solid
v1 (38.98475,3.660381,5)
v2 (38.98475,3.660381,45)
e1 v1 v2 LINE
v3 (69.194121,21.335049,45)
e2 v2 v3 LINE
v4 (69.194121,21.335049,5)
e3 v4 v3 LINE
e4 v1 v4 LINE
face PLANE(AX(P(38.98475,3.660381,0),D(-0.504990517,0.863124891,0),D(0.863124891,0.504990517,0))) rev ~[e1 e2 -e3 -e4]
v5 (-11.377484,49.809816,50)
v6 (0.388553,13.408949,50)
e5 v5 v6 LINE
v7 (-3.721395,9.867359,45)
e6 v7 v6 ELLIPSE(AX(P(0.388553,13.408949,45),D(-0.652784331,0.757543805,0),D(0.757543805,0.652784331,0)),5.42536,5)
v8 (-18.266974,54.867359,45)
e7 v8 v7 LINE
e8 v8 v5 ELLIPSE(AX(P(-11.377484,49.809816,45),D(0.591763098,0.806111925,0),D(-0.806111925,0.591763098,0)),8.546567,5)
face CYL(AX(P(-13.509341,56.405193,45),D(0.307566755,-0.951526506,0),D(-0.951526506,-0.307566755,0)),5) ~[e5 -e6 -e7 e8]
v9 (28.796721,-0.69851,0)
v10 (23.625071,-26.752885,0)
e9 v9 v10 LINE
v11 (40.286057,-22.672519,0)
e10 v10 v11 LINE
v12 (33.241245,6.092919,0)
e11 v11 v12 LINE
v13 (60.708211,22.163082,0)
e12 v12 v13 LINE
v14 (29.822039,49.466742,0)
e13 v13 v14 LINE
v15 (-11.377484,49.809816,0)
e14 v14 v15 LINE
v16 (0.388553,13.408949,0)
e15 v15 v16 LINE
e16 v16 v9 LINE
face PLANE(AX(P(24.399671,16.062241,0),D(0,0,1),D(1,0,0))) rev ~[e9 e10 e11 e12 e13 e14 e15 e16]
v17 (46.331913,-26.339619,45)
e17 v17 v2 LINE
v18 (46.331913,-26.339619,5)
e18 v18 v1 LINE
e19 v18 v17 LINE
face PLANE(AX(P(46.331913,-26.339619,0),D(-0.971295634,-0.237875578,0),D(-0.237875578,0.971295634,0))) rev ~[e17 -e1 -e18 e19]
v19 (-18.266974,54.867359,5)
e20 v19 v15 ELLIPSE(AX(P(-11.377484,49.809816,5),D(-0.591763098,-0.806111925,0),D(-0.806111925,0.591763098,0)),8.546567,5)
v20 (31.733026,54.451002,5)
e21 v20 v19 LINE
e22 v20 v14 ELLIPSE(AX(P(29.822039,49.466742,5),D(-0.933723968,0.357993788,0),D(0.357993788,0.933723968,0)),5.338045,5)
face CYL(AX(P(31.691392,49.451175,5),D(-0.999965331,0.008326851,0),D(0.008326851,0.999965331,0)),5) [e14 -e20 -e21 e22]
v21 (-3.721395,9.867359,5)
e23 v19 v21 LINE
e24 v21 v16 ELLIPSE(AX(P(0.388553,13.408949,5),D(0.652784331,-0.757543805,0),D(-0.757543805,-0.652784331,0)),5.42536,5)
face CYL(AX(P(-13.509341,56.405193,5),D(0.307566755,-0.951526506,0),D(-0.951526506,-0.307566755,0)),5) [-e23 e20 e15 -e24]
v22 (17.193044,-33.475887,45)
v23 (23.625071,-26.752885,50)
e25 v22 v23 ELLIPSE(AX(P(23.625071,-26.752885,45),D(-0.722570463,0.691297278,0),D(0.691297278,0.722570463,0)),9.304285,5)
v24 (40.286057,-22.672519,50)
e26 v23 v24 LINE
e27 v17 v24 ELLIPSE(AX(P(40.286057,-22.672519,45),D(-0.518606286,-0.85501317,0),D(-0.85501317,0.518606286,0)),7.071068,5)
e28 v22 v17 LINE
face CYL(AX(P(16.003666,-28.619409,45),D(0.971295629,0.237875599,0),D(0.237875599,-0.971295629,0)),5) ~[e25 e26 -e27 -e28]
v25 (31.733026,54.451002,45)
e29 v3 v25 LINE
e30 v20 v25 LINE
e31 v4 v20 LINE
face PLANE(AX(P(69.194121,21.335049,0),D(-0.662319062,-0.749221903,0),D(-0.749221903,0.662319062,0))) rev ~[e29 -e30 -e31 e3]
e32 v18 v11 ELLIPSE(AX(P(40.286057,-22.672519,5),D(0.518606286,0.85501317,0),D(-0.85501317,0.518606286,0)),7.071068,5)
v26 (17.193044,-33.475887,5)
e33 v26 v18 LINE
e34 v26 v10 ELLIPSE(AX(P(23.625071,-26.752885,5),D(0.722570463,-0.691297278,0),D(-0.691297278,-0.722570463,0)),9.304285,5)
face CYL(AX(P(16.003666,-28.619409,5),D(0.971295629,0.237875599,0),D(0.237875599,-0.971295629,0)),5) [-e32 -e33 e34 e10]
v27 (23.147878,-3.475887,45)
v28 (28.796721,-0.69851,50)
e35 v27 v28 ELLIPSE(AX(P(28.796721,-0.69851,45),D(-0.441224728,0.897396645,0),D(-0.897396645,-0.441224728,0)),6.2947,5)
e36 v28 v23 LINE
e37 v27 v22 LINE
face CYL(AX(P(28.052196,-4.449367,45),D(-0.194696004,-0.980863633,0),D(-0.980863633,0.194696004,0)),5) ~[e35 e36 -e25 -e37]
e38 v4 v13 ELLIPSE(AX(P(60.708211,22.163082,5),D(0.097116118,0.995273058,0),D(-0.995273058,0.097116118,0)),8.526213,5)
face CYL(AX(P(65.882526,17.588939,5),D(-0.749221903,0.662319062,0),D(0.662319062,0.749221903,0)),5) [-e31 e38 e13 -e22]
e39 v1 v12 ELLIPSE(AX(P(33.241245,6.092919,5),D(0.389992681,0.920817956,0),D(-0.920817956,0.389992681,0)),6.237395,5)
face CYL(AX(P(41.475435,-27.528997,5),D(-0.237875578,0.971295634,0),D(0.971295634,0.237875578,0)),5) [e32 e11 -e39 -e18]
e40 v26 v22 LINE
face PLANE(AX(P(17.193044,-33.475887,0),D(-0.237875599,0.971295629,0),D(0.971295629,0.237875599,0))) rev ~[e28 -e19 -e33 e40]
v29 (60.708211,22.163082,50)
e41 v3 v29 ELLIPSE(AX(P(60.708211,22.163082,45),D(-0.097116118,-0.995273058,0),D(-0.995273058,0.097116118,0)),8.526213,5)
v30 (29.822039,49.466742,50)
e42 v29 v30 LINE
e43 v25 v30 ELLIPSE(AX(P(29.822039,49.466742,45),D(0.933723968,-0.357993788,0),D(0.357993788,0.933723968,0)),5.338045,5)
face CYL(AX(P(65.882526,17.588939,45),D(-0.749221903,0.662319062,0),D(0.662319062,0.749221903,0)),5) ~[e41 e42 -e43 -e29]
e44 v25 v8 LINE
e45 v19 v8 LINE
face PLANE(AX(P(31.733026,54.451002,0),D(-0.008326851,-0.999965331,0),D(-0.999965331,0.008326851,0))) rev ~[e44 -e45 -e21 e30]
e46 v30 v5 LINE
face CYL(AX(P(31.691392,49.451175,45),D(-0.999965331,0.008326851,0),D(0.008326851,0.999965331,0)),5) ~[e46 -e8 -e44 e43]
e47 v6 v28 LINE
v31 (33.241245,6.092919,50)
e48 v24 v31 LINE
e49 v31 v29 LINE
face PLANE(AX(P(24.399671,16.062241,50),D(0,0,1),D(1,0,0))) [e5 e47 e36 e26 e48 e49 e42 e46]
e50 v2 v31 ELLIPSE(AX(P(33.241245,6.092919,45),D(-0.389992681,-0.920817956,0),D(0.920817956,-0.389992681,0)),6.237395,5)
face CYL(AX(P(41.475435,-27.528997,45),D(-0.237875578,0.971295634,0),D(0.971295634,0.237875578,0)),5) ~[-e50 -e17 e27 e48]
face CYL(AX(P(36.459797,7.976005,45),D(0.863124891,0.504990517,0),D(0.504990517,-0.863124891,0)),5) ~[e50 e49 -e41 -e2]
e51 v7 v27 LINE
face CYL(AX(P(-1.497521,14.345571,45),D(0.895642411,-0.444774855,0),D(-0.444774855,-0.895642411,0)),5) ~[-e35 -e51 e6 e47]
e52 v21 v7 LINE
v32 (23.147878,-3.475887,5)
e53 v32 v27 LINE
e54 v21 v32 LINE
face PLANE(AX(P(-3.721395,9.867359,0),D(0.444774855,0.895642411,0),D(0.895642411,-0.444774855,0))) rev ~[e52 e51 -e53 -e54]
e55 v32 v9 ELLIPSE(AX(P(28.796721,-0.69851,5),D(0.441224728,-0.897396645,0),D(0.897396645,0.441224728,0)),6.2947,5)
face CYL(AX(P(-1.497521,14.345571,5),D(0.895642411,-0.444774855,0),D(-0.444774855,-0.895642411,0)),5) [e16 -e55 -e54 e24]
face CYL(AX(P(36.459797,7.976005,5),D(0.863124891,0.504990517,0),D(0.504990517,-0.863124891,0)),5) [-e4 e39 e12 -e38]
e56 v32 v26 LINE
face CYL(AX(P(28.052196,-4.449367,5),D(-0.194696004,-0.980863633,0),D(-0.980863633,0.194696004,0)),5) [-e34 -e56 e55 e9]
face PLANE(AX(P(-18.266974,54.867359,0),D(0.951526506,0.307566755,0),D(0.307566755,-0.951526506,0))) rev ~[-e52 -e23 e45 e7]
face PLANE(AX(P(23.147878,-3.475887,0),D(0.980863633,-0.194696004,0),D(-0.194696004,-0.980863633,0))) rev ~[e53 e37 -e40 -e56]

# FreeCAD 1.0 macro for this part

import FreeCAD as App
import Part
import Sketcher
Q = App.Units.Quantity


def edges_at(feature, points):
    """Names of the edges that pass closest to the given points."""
    edges = feature.Shape.Edges
    near = lambda p: min(range(len(edges)), key=lambda i: edges[i].distToShape(Part.Vertex(*p))[0])
    return sorted({f"Edge{near(p) + 1}" for p in points})

doc = App.newDocument("Part")
body = doc.addObject("PartDesign::Body", "Body")

# Sketch on XY plane
sketch1 = body.newObject("Sketcher::SketchObject", "Sketch")
sketch1.AttachmentSupport = (doc.getObject("XY_Plane"), [""])
sketch1.MapMode = "FlatFace"
sketch1.addGeometry(Part.LineSegment(App.Vector(23, -3, 0), App.Vector(17, -33, 0)), False)
sketch1.addGeometry(Part.LineSegment(App.Vector(17, -33, 0), App.Vector(46, -26, 0)), False)
sketch1.addGeometry(Part.LineSegment(App.Vector(46, -26, 0), App.Vector(39, 4, 0)), False)
sketch1.addGeometry(Part.LineSegment(App.Vector(39, 4, 0), App.Vector(69, 21, 0)), False)
sketch1.addGeometry(Part.LineSegment(App.Vector(69, 21, 0), App.Vector(32, 54, 0)), False)
sketch1.addGeometry(Part.LineSegment(App.Vector(32, 54, 0), App.Vector(-18, 55, 0)), False)
sketch1.addGeometry(Part.LineSegment(App.Vector(-18, 55, 0), App.Vector(-4, 10, 0)), False)
sketch1.addGeometry(Part.LineSegment(App.Vector(-4, 10, 0), App.Vector(23, -3, 0)), False)
sketch1.addConstraint(Sketcher.Constraint("Coincident", 0, 2, 1, 1))
sketch1.addConstraint(Sketcher.Constraint("Coincident", 1, 2, 2, 1))
sketch1.addConstraint(Sketcher.Constraint("Coincident", 2, 2, 3, 1))
sketch1.addConstraint(Sketcher.Constraint("Coincident", 3, 2, 4, 1))
sketch1.addConstraint(Sketcher.Constraint("Coincident", 4, 2, 5, 1))
sketch1.addConstraint(Sketcher.Constraint("Coincident", 5, 2, 6, 1))
sketch1.addConstraint(Sketcher.Constraint("Coincident", 6, 2, 7, 1))
sketch1.addConstraint(Sketcher.Constraint("Coincident", 7, 2, 0, 1))
sketch1.addConstraint(Sketcher.Constraint("Perpendicular", 1, 2))
sketch1.addConstraint(Sketcher.Constraint("Equal", 1, 7))
sketch1.addConstraint(Sketcher.Constraint("Distance", 1, Q("30 mm")))
sketch1.addConstraint(Sketcher.Constraint("Distance", 3, Q("35 mm")))
sketch1.addConstraint(Sketcher.Constraint("Distance", 4, Q("50 mm")))
sketch1.addConstraint(Sketcher.Constraint("DistanceY", 1, 2, 2, 2, Q("30 mm")))
sketch1.addConstraint(Sketcher.Constraint("DistanceX", 5, 2, 4, 2, Q("50 mm")))
sketch1.addConstraint(Sketcher.Constraint("DistanceY", 6, 2, 5, 2, Q("45 mm")))
sketch1.addConstraint(Sketcher.Constraint("DistanceY", 0, 2, 7, 2, Q("30 mm")))
sketch1.addConstraint(Sketcher.Constraint("Distance", 0, Q("30.585291 mm")))
sketch1.addConstraint(Sketcher.Constraint("Distance", 2, Q("30.88658 mm")))
sketch1.addConstraint(Sketcher.Constraint("Distance", 6, Q("47.292429 mm")))
sketch1.addConstraint(Sketcher.Constraint("DistanceY", 1, 2, -1, 1, Q("26.339619 mm")))
sketch1.addConstraint(Sketcher.Constraint("DistanceX", -1, 1, 2, 2, Q("38.98475 mm")))
sketch1.addConstraint(Sketcher.Constraint("DistanceX", -1, 1, 3, 2, Q("69.194121 mm")))
sketch1.addConstraint(Sketcher.Constraint("DistanceY", -1, 1, 5, 2, Q("54.867359 mm")))
pad1 = body.newObject("PartDesign::Pad", "Pad")
pad1.Profile = sketch1
pad1.Length = 50
doc.recompute()

fillet = body.newObject("PartDesign::Fillet", "Fillet")
fillet.Base = (pad1, edges_at(pad1, [
    (50.464, 37.893, 50),
    (6.733, 54.659, 50),
    (54.089, 12.498, 50),
    (42.658, -11.34, 50),
    (31.762, -29.908, 50),
    (20.17, -18.476, 50),
    (9.713, 3.196, 50),
    (-10.994, 32.367, 50),
    (50.464, 37.893, 0),
    (6.733, 54.659, 0),
    (42.658, -11.34, 0),
    (-10.994, 32.367, 0),
    (9.713, 3.196, 0),
    (20.17, -18.476, 0),
    (31.762, -29.908, 0),
    (54.089, 12.498, 0),
]))
fillet.Radius = 5

doc.recompute()
